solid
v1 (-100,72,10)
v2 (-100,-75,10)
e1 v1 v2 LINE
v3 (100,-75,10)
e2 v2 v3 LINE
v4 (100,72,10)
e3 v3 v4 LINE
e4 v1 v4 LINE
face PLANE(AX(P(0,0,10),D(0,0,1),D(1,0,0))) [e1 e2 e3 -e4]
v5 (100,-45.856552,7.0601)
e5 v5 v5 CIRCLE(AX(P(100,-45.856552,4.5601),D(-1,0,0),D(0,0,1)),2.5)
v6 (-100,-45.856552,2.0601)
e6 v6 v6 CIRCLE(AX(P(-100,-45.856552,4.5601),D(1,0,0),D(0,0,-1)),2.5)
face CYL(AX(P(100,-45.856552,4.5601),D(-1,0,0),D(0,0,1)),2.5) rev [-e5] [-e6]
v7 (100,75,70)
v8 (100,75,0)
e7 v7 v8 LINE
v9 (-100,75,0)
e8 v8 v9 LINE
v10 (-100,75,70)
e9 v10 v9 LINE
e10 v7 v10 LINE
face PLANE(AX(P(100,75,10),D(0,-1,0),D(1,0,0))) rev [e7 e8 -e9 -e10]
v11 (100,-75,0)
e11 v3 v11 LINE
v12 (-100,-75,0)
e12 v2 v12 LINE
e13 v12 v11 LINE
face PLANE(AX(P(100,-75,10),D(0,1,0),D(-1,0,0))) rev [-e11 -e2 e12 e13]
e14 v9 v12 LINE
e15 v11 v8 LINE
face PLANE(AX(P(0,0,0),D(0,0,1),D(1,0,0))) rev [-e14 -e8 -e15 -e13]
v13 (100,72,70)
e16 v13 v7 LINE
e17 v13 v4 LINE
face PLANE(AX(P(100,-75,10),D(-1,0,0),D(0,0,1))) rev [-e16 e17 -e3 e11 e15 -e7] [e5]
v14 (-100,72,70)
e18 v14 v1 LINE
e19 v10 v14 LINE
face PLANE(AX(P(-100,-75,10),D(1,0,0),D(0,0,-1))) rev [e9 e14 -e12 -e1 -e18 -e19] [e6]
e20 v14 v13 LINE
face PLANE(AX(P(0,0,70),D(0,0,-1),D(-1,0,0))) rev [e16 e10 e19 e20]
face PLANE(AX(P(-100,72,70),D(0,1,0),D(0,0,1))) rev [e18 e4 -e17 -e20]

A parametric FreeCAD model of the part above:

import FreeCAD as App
import Part
import Sketcher
Q = App.Units.Quantity

doc = App.newDocument("Part")
body = doc.addObject("PartDesign::Body", "Body")

sketch1 = body.newObject("Sketcher::SketchObject", "Sketch")
sketch1.AttachmentSupport = (doc.getObject("XY_Plane"), [""])
sketch1.MapMode = "FlatFace"
sketch1.addGeometry([
    Part.LineSegment(App.Vector(-100, 75, 0), App.Vector(-100, -75, 0)),
    Part.LineSegment(App.Vector(-100, -75, 0), App.Vector(100, -75, 0)),
    Part.LineSegment(App.Vector(100, -75, 0), App.Vector(100, 75, 0)),
    Part.LineSegment(App.Vector(100, 75, 0), App.Vector(-100, 75, 0)),
], False)
sketch1.addConstraint([
    Sketcher.Constraint("Coincident", 0, 2, 1, 1),
    Sketcher.Constraint("Coincident", 1, 2, 2, 1),
    Sketcher.Constraint("Coincident", 2, 2, 3, 1),
    Sketcher.Constraint("Coincident", 3, 2, 0, 1),
    Sketcher.Constraint("Vertical", 0),
    Sketcher.Constraint("Horizontal", 1),
    Sketcher.Constraint("Vertical", 2),
    Sketcher.Constraint("Horizontal", 3),
    Sketcher.Constraint("Symmetric", 0, 2, 2, 2, -1, 1),
    Sketcher.Constraint("DistanceX", 1, 1, 1, 2, Q("200 mm")),
    Sketcher.Constraint("DistanceY", 0, 2, 0, 1, Q("150 mm")),
])
pad1 = body.newObject("PartDesign::Pad", "Pad")
pad1.Profile = sketch1
pad1.Length = 10

sketch2 = body.newObject("Sketcher::SketchObject", "Sketch001")
sketch2.AttachmentSupport = (doc.getObject("YZ_Plane"), [""])
sketch2.MapMode = "FlatFace"
sketch2.AttachmentOffset = App.Placement(App.Vector(0, 0, -100), App.Rotation())
sketch2.addGeometry(Part.Circle(App.Vector(-45.9, 4.6, 0), App.Vector(0, 0, 1), 2.5), False)
sketch2.addConstraint([
    Sketcher.Constraint("Diameter", 0, Q("5 mm")),
    Sketcher.Constraint("DistanceY", -1, 1, 0, 3, Q("4.5601 mm")),
    Sketcher.Constraint("DistanceX", 0, 3, -1, 1, Q("45.856552 mm")),
])
pocket1 = body.newObject("PartDesign::Pocket", "Pocket")
pocket1.Profile = sketch2
pocket1.Type = "ThroughAll"
pocket1.Midplane = True

sketch3 = body.newObject("Sketcher::SketchObject", "Sketch002")
sketch3.AttachmentSupport = (doc.getObject("XY_Plane"), [""])
sketch3.MapMode = "FlatFace"
sketch3.AttachmentOffset = App.Placement(App.Vector(0, 0, 10), App.Rotation())
sketch3.addGeometry([
    Part.LineSegment(App.Vector(-100, 75, 0), App.Vector(-100, 72, 0)),
    Part.LineSegment(App.Vector(-100, 72, 0), App.Vector(100, 72, 0)),
    Part.LineSegment(App.Vector(100, 72, 0), App.Vector(100, 75, 0)),
    Part.LineSegment(App.Vector(100, 75, 0), App.Vector(-100, 75, 0)),
], False)
sketch3.addConstraint([
    Sketcher.Constraint("Coincident", 0, 2, 1, 1),
    Sketcher.Constraint("Coincident", 1, 2, 2, 1),
    Sketcher.Constraint("Coincident", 2, 2, 3, 1),
    Sketcher.Constraint("Coincident", 3, 2, 0, 1),
    Sketcher.Constraint("Vertical", 0),
    Sketcher.Constraint("Horizontal", 1),
    Sketcher.Constraint("Vertical", 2),
    Sketcher.Constraint("Horizontal", 3),
    Sketcher.Constraint("DistanceX", 1, 1, 1, 2, Q("200 mm")),
    Sketcher.Constraint("DistanceY", 0, 2, 0, 1, Q("3 mm")),
    Sketcher.Constraint("DistanceX", 0, 2, -1, 1, Q("100 mm")),
    Sketcher.Constraint("DistanceY", -1, 1, 0, 2, Q("72 mm")),
])
pad2 = body.newObject("PartDesign::Pad", "Pad001")
pad2.Profile = sketch3
pad2.Length = 60

doc.recompute()
